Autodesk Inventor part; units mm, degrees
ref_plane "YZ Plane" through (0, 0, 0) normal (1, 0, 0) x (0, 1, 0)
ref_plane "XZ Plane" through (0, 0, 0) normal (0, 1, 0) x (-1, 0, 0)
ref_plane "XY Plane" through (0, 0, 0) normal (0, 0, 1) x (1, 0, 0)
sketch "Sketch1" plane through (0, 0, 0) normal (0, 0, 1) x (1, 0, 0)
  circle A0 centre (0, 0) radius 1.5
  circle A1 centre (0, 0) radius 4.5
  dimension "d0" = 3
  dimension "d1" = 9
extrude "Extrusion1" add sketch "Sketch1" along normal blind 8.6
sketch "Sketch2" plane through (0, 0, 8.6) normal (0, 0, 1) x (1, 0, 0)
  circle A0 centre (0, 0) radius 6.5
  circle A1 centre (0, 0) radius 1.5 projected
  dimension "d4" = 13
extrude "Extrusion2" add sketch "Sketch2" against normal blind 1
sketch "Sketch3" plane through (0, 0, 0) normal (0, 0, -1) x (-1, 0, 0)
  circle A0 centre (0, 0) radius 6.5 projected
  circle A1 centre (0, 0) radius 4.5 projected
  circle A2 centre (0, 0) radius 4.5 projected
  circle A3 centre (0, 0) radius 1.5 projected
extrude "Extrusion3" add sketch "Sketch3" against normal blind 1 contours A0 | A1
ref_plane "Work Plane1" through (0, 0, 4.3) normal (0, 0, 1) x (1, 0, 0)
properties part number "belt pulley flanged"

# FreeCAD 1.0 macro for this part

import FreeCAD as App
import Part
import Sketcher

V = App.Vector
Q = App.Units.Quantity

doc = App.newDocument("Part")
body = doc.addObject("PartDesign::Body", "Body")

sketch1 = body.newObject("Sketcher::SketchObject", "Sketch")
sketch1.AttachmentSupport = (doc.getObject("XY_Plane"), [""])
sketch1.MapMode = "FlatFace"
sketch1.addGeometry([
    Part.Circle(V(0, 0, 0), V(0, 0, 1), 4.5),
    Part.Circle(V(0, 0, 0), V(0, 0, 1), 1.5),
], False)
sketch1.addConstraint([
    Sketcher.Constraint("Coincident", 0, 3, -1, 1),
    Sketcher.Constraint("Coincident", 1, 3, -1, 1),
    Sketcher.Constraint("Diameter", 0, Q("9 mm")),
    Sketcher.Constraint("Diameter", 1, Q("3 mm")),
])
pad1 = body.newObject("PartDesign::Pad", "Pad")
pad1.Profile = sketch1
pad1.Length = 8.6

sketch2 = body.newObject("Sketcher::SketchObject", "Sketch001")
sketch2.AttachmentSupport = (doc.getObject("XY_Plane"), [""])
sketch2.MapMode = "FlatFace"
sketch2.AttachmentOffset = App.Placement(V(0, 0, 8.6), App.Rotation())
sketch2.addGeometry([
    Part.Circle(V(0, 0, 0), V(0, 0, 1), 6.5),
    Part.Circle(V(0, 0, 0), V(0, 0, 1), 1.5),
], False)
sketch2.addConstraint([
    Sketcher.Constraint("Coincident", 0, 3, -1, 1),
    Sketcher.Constraint("Coincident", 1, 3, -1, 1),
    Sketcher.Constraint("Diameter", 0, Q("13 mm")),
    Sketcher.Constraint("Diameter", 1, Q("3 mm")),
])
pad2 = body.newObject("PartDesign::Pad", "Pad001")
pad2.Profile = sketch2
pad2.Length = 1
pad2.Reversed = True

sketch3 = body.newObject("Sketcher::SketchObject", "Sketch002")
sketch3.AttachmentSupport = (doc.getObject("XY_Plane"), [""])
sketch3.MapMode = "FlatFace"
sketch3.addGeometry([
    Part.Circle(V(0, 0, 0), V(0, 0, 1), 6.5),
    Part.Circle(V(0, 0, 0), V(0, 0, 1), 1.5),
], False)
sketch3.addConstraint([
    Sketcher.Constraint("Coincident", 0, 3, -1, 1),
    Sketcher.Constraint("Coincident", 1, 3, -1, 1),
    Sketcher.Constraint("Diameter", 0, Q("13 mm")),
    Sketcher.Constraint("Diameter", 1, Q("3 mm")),
])
pad3 = body.newObject("PartDesign::Pad", "Pad002")
pad3.Profile = sketch3
pad3.Length = 1

doc.recompute()
